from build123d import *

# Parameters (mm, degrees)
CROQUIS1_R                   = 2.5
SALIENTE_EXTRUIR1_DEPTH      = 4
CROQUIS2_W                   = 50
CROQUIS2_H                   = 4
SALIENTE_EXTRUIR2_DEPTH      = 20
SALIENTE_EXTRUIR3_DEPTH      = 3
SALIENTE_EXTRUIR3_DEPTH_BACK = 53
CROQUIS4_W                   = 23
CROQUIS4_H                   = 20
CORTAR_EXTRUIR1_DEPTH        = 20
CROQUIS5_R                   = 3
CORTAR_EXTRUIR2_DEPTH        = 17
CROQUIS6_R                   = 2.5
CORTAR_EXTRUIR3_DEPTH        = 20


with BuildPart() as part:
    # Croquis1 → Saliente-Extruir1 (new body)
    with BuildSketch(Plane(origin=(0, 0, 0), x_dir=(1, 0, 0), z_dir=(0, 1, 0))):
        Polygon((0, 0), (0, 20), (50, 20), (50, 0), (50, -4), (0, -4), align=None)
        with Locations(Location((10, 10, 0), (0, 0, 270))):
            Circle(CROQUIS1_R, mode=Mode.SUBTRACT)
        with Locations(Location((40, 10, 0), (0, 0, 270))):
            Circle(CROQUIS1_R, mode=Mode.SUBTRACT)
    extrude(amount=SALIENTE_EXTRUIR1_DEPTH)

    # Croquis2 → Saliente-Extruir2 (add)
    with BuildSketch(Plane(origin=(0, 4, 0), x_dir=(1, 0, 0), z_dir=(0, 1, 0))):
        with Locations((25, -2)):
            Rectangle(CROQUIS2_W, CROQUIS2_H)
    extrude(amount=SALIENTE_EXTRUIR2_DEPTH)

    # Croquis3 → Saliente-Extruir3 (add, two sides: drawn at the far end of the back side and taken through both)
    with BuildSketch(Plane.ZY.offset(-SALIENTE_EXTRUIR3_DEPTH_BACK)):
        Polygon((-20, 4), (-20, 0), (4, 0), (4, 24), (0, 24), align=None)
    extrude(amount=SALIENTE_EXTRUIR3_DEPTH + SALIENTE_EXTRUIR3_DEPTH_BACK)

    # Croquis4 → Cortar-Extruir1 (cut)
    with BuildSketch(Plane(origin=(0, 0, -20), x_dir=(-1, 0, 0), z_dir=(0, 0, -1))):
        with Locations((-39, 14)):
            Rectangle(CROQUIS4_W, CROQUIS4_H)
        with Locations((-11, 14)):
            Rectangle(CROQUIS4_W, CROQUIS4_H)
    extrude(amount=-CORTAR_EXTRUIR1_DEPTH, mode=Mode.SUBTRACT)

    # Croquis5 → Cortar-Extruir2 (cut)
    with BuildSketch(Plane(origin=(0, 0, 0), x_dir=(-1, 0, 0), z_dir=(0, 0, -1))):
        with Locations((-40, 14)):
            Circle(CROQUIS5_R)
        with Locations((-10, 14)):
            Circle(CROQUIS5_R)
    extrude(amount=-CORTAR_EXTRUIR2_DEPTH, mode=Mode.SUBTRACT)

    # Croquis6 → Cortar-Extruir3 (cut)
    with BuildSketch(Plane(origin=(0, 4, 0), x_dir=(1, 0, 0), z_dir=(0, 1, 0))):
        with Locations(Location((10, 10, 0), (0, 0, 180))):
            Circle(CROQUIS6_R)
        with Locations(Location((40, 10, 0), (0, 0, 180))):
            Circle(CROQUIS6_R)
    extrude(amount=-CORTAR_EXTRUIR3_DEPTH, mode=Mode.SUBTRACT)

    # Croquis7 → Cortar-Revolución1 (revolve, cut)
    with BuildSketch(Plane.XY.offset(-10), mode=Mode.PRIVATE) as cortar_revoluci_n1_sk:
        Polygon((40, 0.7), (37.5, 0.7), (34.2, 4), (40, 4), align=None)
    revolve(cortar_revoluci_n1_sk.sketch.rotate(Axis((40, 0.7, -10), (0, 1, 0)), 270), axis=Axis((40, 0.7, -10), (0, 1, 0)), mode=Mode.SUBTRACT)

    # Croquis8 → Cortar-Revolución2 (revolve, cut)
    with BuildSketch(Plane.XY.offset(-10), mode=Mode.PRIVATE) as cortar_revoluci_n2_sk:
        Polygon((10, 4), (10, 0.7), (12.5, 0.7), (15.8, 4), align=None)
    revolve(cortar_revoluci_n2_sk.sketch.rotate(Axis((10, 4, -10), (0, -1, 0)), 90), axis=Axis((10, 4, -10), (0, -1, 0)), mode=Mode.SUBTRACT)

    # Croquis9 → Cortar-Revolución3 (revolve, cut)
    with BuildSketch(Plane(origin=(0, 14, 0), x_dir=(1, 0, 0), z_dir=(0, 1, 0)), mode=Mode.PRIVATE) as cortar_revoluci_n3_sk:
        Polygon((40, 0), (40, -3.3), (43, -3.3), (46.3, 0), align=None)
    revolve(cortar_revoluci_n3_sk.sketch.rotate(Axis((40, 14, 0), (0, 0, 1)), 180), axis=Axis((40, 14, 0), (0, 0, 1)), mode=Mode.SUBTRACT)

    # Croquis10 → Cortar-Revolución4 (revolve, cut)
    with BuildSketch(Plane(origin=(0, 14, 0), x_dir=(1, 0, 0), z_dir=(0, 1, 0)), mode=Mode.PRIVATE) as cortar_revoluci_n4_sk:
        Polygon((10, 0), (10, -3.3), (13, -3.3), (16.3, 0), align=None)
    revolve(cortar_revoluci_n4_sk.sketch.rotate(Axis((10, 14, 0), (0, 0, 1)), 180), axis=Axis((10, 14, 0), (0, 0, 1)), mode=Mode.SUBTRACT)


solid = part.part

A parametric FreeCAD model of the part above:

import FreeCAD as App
import Part
import Sketcher

V = App.Vector
Q = App.Units.Quantity


def add_polygon(sketch, points):
    """Adds a closed chain of lines whose ends are joined by coincident constraints."""
    first, n = sketch.GeometryCount, len(points)
    for a, b in zip(points, points[1:] + points[:1]):
        sketch.addGeometry(Part.LineSegment(App.Vector(*a, 0), App.Vector(*b, 0)), False)
    for i in range(n):
        sketch.addConstraint(Sketcher.Constraint("Coincident", first + i, 2, first + (i + 1) % n, 1))

doc = App.newDocument("Part")
body = doc.addObject("PartDesign::Body", "Body")

# Sketch on XZ plane
sketch1 = doc.addObject("Sketcher::SketchObject", "Sketch")
body.addObject(sketch1)
sketch1.AttachmentSupport = (doc.XZ_Plane, [""])
sketch1.MapMode = "FlatFace"
add_polygon(sketch1, [(0, -20), (0, 4), (50, 4), (50, -20)])  # lines 0-3
sketch1.addGeometry(Part.Circle(V(40, -10, 0), V(0, 0, 1), 2.5), False)  # 4
sketch1.addGeometry(Part.Circle(V(10, -10, 0), V(0, 0, 1), 2.5), False)  # 5
sketch1.addConstraint(Sketcher.Constraint("Vertical", 0))
sketch1.addConstraint(Sketcher.Constraint("Horizontal", 1))
sketch1.addConstraint(Sketcher.Constraint("Vertical", 2))
sketch1.addConstraint(Sketcher.Constraint("Horizontal", 3))
sketch1.addConstraint(Sketcher.Constraint("Equal", 4, 5))
sketch1.addConstraint(Sketcher.Constraint("PointOnObject", 0, 2, -2))
sketch1.addConstraint(Sketcher.Constraint("Horizontal", 4, 3, 5, 3))
sketch1.addConstraint(Sketcher.Constraint("Diameter", 4, 5.0))
sketch1.addConstraint(Sketcher.Constraint("DistanceX", 1, 1, 1, 2, 50.0))
sketch1.addConstraint(Sketcher.Constraint("DistanceY", 0, 1, 0, 2, 24.0))
sketch1.addConstraint(Sketcher.Constraint("DistanceX", -1, 1, 4, 3, 40.0))
sketch1.addConstraint(Sketcher.Constraint("DistanceY", 4, 3, -1, 1, 10.0))
sketch1.addConstraint(Sketcher.Constraint("DistanceX", -1, 1, 5, 3, 10.0))
sketch1.addConstraint(Sketcher.Constraint("DistanceY", -1, 1, 0, 2, 4.0))
pad1 = doc.addObject("PartDesign::Pad", "Pad")
body.addObject(pad1)
pad1.Profile = sketch1
pad1.Length = 4
pad1.Reversed = True

# Sketch on XZ plane
sketch2 = doc.addObject("Sketcher::SketchObject", "Sketch001")
body.addObject(sketch2)
sketch2.AttachmentSupport = (doc.XZ_Plane, [""])
sketch2.MapMode = "FlatFace"
sketch2.AttachmentOffset = App.Placement(V(0, 0, -4), App.Rotation())
add_polygon(sketch2, [(0, 0), (0, 4), (50, 4), (50, 0)])  # lines 0-3
sketch2.addConstraint(Sketcher.Constraint("Vertical", 0))
sketch2.addConstraint(Sketcher.Constraint("Horizontal", 1))
sketch2.addConstraint(Sketcher.Constraint("Vertical", 2))
sketch2.addConstraint(Sketcher.Constraint("Horizontal", 3))
sketch2.addConstraint(Sketcher.Constraint("Coincident", 3, 2, -1, 1))
sketch2.addConstraint(Sketcher.Constraint("DistanceX", 1, 1, 1, 2, 50.0))
sketch2.addConstraint(Sketcher.Constraint("DistanceY", 0, 1, 0, 2, 4.0))
pad2 = doc.addObject("PartDesign::Pad", "Pad001")
body.addObject(pad2)
pad2.Profile = sketch2
pad2.Length = 20
pad2.Reversed = True

# Sketch on YZ plane
sketch3 = doc.addObject("Sketcher::SketchObject", "Sketch002")
body.addObject(sketch3)
sketch3.AttachmentSupport = (doc.YZ_Plane, [""])
sketch3.MapMode = "FlatFace"
add_polygon(sketch3, [(4, -20), (0, -20), (0, 4), (24, 4), (24, 0)])  # lines 0-4
sketch3.addConstraint(Sketcher.Constraint("Horizontal", 0))
sketch3.addConstraint(Sketcher.Constraint("Vertical", 1))
sketch3.addConstraint(Sketcher.Constraint("Horizontal", 2))
sketch3.addConstraint(Sketcher.Constraint("Vertical", 3))
sketch3.addConstraint(Sketcher.Constraint("PointOnObject", 0, 2, -2))
sketch3.addConstraint(Sketcher.Constraint("PointOnObject", 3, 2, -1))
sketch3.addConstraint(Sketcher.Constraint("Equal", 2, 1))
sketch3.addConstraint(Sketcher.Constraint("Equal", 0, 3))
sketch3.addConstraint(Sketcher.Constraint("DistanceX", 0, 2, 0, 1, 4.0))
sketch3.addConstraint(Sketcher.Constraint("DistanceX", 2, 1, 2, 2, 24.0))
pad3 = doc.addObject("PartDesign::Pad", "Pad002")
body.addObject(pad3)
pad3.Profile = sketch3
pad3.Type = "TwoLengths"
pad3.Length = 3
pad3.Length2 = 53
pad3.Reversed = True

# Sketch on XY plane
sketch4 = doc.addObject("Sketcher::SketchObject", "Sketch003")
body.addObject(sketch4)
sketch4.AttachmentSupport = (doc.XY_Plane, [""])
sketch4.MapMode = "FlatFace"
sketch4.AttachmentOffset = App.Placement(V(0, 0, -20), App.Rotation())
add_polygon(sketch4, [(50, 24), (50, 4), (28, 4), (28, 24)])  # lines 0-3
add_polygon(sketch4, [(22, 24), (22, 4), (0, 4), (0, 24)])  # lines 4-7
sketch4.addConstraint(Sketcher.Constraint("Vertical", 0))
sketch4.addConstraint(Sketcher.Constraint("Horizontal", 1))
sketch4.addConstraint(Sketcher.Constraint("Vertical", 2))
sketch4.addConstraint(Sketcher.Constraint("Horizontal", 3))
sketch4.addConstraint(Sketcher.Constraint("Vertical", 4))
sketch4.addConstraint(Sketcher.Constraint("Horizontal", 5))
sketch4.addConstraint(Sketcher.Constraint("Vertical", 6))
sketch4.addConstraint(Sketcher.Constraint("Horizontal", 7))
sketch4.addConstraint(Sketcher.Constraint("Horizontal", 1, 2, 4, 2))
sketch4.addConstraint(Sketcher.Constraint("Horizontal", 3, 2, 6, 2))
sketch4.addConstraint(Sketcher.Constraint("Equal", 3, 5))
sketch4.addConstraint(Sketcher.Constraint("DistanceX", 1, 2, 1, 1, 23.0))
sketch4.addConstraint(Sketcher.Constraint("DistanceY", 0, 2, 0, 1, 20.0))
sketch4.addConstraint(Sketcher.Constraint("DistanceY", -1, 1, 0, 2, 4.0))
sketch4.addConstraint(Sketcher.Constraint("DistanceX", 4, 2, 1, 2, 5.0))
sketch4.addConstraint(Sketcher.Constraint("DistanceX", -1, 1, 0, 2, 50.5))
pocket1 = doc.addObject("PartDesign::Pocket", "Pocket")
body.addObject(pocket1)
pocket1.Profile = sketch4
pocket1.Length = 20
pocket1.Reversed = True

# Sketch on XY plane
sketch5 = doc.addObject("Sketcher::SketchObject", "Sketch004")
body.addObject(sketch5)
sketch5.AttachmentSupport = (doc.XY_Plane, [""])
sketch5.MapMode = "FlatFace"
sketch5.addGeometry(Part.Circle(V(40, 14, 0), V(0, 0, 1), 3), False)
sketch5.addGeometry(Part.Circle(V(10, 14, 0), V(0, 0, 1), 3), False)
sketch5.addConstraint(Sketcher.Constraint("Equal", 0, 1))
sketch5.addConstraint(Sketcher.Constraint("Horizontal", 0, 3, 1, 3))
sketch5.addConstraint(Sketcher.Constraint("Diameter", 0, 6.0))
sketch5.addConstraint(Sketcher.Constraint("DistanceX", -1, 1, 0, 3, 40.0))
sketch5.addConstraint(Sketcher.Constraint("DistanceY", -1, 1, 0, 3, 14.0))
sketch5.addConstraint(Sketcher.Constraint("DistanceX", -1, 1, 1, 3, 10.0))
pocket2 = doc.addObject("PartDesign::Pocket", "Pocket001")
body.addObject(pocket2)
pocket2.Profile = sketch5
pocket2.Length = 17
pocket2.Reversed = True

# Sketch on XZ plane
sketch6 = doc.addObject("Sketcher::SketchObject", "Sketch005")
body.addObject(sketch6)
sketch6.AttachmentSupport = (doc.XZ_Plane, [""])
sketch6.MapMode = "FlatFace"
sketch6.AttachmentOffset = App.Placement(V(0, 0, -4), App.Rotation())
sketch6.addGeometry(Part.Circle(V(10, -10, 0), V(0, 0, 1), 2.5), False)
sketch6.addGeometry(Part.Circle(V(40, -10, 0), V(0, 0, 1), 2.5), False)
sketch6.addConstraint(Sketcher.Constraint("Equal", 0, 1))
sketch6.addConstraint(Sketcher.Constraint("Horizontal", 0, 3, 1, 3))
sketch6.addConstraint(Sketcher.Constraint("Diameter", 0, 5.0))
sketch6.addConstraint(Sketcher.Constraint("DistanceX", -1, 1, 0, 3, 10.0))
sketch6.addConstraint(Sketcher.Constraint("DistanceY", 0, 3, -1, 1, 10.0))
sketch6.addConstraint(Sketcher.Constraint("DistanceX", -1, 1, 1, 3, 40.0))
pocket3 = doc.addObject("PartDesign::Pocket", "Pocket002")
body.addObject(pocket3)
pocket3.Profile = sketch6
pocket3.Length = 20
pocket3.Reversed = True

# Sketch on XY plane
sketch7 = doc.addObject("Sketcher::SketchObject", "Sketch006")
body.addObject(sketch7)
sketch7.AttachmentSupport = (doc.XY_Plane, [""])
sketch7.MapMode = "FlatFace"
sketch7.AttachmentOffset = App.Placement(V(0, 0, -10), App.Rotation())
add_polygon(sketch7, [(37.5, 0.7), (40, 0.7), (40, 4), (34.2, 4)])  # lines 0-3
sketch7.addGeometry(Part.LineSegment(V(40, 0.7, 0), V(40, 4, 0)), True)  # axis
sketch7.addConstraint(Sketcher.Constraint("Horizontal", 0))
sketch7.addConstraint(Sketcher.Constraint("Vertical", 1))
sketch7.addConstraint(Sketcher.Constraint("Horizontal", 2))
sketch7.addConstraint(Sketcher.Constraint("Vertical", 4))
sketch7.addConstraint(Sketcher.Constraint("Coincident", 4, 1, 0, 2))
sketch7.addConstraint(Sketcher.Constraint("Horizontal", 2, 2, 4, 2))
sketch7.addConstraint(Sketcher.Constraint("Angle", 3, Q("-45 deg")))
sketch7.addConstraint(Sketcher.Constraint("DistanceX", 0, 1, 0, 2, 2.5))
sketch7.addConstraint(Sketcher.Constraint("DistanceX", 2, 2, 2, 1, 5.8))
sketch7.addConstraint(Sketcher.Constraint("DistanceX", -1, 1, 0, 2, 40.0))
sketch7.addConstraint(Sketcher.Constraint("DistanceY", -1, 1, 1, 2, 4.0))
groove = doc.addObject("PartDesign::Groove", "Groove")
body.addObject(groove)
groove.Profile = sketch7
groove.ReferenceAxis = (sketch7, ["Axis0"])
groove.Angle = 360

# Sketch on XY plane
sketch8 = doc.addObject("Sketcher::SketchObject", "Sketch007")
body.addObject(sketch8)
sketch8.AttachmentSupport = (doc.XY_Plane, [""])
sketch8.MapMode = "FlatFace"
sketch8.AttachmentOffset = App.Placement(V(0, 0, -10), App.Rotation())
add_polygon(sketch8, [(10, 4), (10, 0.7), (12.5, 0.7), (15.8, 4)])  # lines 0-3
sketch8.addGeometry(Part.LineSegment(V(10, 4, 0), V(10, 0.7, 0)), True)  # axis
sketch8.addConstraint(Sketcher.Constraint("Vertical", 0))
sketch8.addConstraint(Sketcher.Constraint("Horizontal", 1))
sketch8.addConstraint(Sketcher.Constraint("Horizontal", 3))
sketch8.addConstraint(Sketcher.Constraint("Vertical", 4))
sketch8.addConstraint(Sketcher.Constraint("Coincident", 4, 1, 3, 2))
sketch8.addConstraint(Sketcher.Constraint("Horizontal", 1, 2, 4, 2))
sketch8.addConstraint(Sketcher.Constraint("Angle", 2, Q("45 deg")))
sketch8.addConstraint(Sketcher.Constraint("DistanceX", 1, 1, 1, 2, 2.5))
sketch8.addConstraint(Sketcher.Constraint("DistanceX", 3, 2, 3, 1, 5.8))
sketch8.addConstraint(Sketcher.Constraint("DistanceX", -1, 1, 0, 2, 10.0))
sketch8.addConstraint(Sketcher.Constraint("DistanceY", -1, 1, 2, 2, 4.0))
groove2 = doc.addObject("PartDesign::Groove", "Groove001")
body.addObject(groove2)
groove2.Profile = sketch8
groove2.ReferenceAxis = (sketch8, ["Axis0"])
groove2.Angle = 360

# Sketch on XZ plane
sketch9 = doc.addObject("Sketcher::SketchObject", "Sketch008")
body.addObject(sketch9)
sketch9.AttachmentSupport = (doc.XZ_Plane, [""])
sketch9.MapMode = "FlatFace"
sketch9.AttachmentOffset = App.Placement(V(0, 0, -14), App.Rotation())
add_polygon(sketch9, [(40, 0), (40, 3.3), (43, 3.3), (46.3, 0)])  # lines 0-3
sketch9.addGeometry(Part.LineSegment(V(40, 0, 0), V(40, 3.3, 0)), True)  # axis
sketch9.addConstraint(Sketcher.Constraint("Vertical", 0))
sketch9.addConstraint(Sketcher.Constraint("Horizontal", 1))
sketch9.addConstraint(Sketcher.Constraint("Horizontal", 3))
sketch9.addConstraint(Sketcher.Constraint("Vertical", 4))
sketch9.addConstraint(Sketcher.Constraint("Coincident", 4, 1, 3, 2))
sketch9.addConstraint(Sketcher.Constraint("PointOnObject", 2, 2, -1))
sketch9.addConstraint(Sketcher.Constraint("Horizontal", 1, 2, 4, 2))
sketch9.addConstraint(Sketcher.Constraint("DistanceX", 1, 1, 1, 2, 3.0))
sketch9.addConstraint(Sketcher.Constraint("Angle", 2, Q("-45 deg")))
sketch9.addConstraint(Sketcher.Constraint("DistanceX", 3, 2, 3, 1, 6.3))
sketch9.addConstraint(Sketcher.Constraint("DistanceX", -1, 1, 0, 2, 40.0))
groove3 = doc.addObject("PartDesign::Groove", "Groove002")
body.addObject(groove3)
groove3.Profile = sketch9
groove3.ReferenceAxis = (sketch9, ["Axis0"])
groove3.Angle = 360

# Sketch on XZ plane
sketch10 = doc.addObject("Sketcher::SketchObject", "Sketch009")
body.addObject(sketch10)
sketch10.AttachmentSupport = (doc.XZ_Plane, [""])
sketch10.MapMode = "FlatFace"
sketch10.AttachmentOffset = App.Placement(V(0, 0, -14), App.Rotation())
add_polygon(sketch10, [(10, 0), (10, 3.3), (13, 3.3), (16.3, 0)])  # lines 0-3
sketch10.addGeometry(Part.LineSegment(V(10, 0, 0), V(10, 3.3, 0)), True)  # axis
sketch10.addConstraint(Sketcher.Constraint("Vertical", 0))
sketch10.addConstraint(Sketcher.Constraint("Horizontal", 1))
sketch10.addConstraint(Sketcher.Constraint("Horizontal", 3))
sketch10.addConstraint(Sketcher.Constraint("Vertical", 4))
sketch10.addConstraint(Sketcher.Constraint("Coincident", 4, 1, 3, 2))
sketch10.addConstraint(Sketcher.Constraint("PointOnObject", 2, 2, -1))
sketch10.addConstraint(Sketcher.Constraint("Horizontal", 1, 2, 4, 2))
sketch10.addConstraint(Sketcher.Constraint("DistanceX", 1, 1, 1, 2, 3.0))
sketch10.addConstraint(Sketcher.Constraint("Angle", 2, Q("-45 deg")))
sketch10.addConstraint(Sketcher.Constraint("DistanceX", 3, 2, 3, 1, 6.3))
sketch10.addConstraint(Sketcher.Constraint("DistanceX", -1, 1, 0, 2, 10.0))
groove4 = doc.addObject("PartDesign::Groove", "Groove003")
body.addObject(groove4)
groove4.Profile = sketch10
groove4.ReferenceAxis = (sketch10, ["Axis0"])
groove4.Angle = 360

doc.recompute()
